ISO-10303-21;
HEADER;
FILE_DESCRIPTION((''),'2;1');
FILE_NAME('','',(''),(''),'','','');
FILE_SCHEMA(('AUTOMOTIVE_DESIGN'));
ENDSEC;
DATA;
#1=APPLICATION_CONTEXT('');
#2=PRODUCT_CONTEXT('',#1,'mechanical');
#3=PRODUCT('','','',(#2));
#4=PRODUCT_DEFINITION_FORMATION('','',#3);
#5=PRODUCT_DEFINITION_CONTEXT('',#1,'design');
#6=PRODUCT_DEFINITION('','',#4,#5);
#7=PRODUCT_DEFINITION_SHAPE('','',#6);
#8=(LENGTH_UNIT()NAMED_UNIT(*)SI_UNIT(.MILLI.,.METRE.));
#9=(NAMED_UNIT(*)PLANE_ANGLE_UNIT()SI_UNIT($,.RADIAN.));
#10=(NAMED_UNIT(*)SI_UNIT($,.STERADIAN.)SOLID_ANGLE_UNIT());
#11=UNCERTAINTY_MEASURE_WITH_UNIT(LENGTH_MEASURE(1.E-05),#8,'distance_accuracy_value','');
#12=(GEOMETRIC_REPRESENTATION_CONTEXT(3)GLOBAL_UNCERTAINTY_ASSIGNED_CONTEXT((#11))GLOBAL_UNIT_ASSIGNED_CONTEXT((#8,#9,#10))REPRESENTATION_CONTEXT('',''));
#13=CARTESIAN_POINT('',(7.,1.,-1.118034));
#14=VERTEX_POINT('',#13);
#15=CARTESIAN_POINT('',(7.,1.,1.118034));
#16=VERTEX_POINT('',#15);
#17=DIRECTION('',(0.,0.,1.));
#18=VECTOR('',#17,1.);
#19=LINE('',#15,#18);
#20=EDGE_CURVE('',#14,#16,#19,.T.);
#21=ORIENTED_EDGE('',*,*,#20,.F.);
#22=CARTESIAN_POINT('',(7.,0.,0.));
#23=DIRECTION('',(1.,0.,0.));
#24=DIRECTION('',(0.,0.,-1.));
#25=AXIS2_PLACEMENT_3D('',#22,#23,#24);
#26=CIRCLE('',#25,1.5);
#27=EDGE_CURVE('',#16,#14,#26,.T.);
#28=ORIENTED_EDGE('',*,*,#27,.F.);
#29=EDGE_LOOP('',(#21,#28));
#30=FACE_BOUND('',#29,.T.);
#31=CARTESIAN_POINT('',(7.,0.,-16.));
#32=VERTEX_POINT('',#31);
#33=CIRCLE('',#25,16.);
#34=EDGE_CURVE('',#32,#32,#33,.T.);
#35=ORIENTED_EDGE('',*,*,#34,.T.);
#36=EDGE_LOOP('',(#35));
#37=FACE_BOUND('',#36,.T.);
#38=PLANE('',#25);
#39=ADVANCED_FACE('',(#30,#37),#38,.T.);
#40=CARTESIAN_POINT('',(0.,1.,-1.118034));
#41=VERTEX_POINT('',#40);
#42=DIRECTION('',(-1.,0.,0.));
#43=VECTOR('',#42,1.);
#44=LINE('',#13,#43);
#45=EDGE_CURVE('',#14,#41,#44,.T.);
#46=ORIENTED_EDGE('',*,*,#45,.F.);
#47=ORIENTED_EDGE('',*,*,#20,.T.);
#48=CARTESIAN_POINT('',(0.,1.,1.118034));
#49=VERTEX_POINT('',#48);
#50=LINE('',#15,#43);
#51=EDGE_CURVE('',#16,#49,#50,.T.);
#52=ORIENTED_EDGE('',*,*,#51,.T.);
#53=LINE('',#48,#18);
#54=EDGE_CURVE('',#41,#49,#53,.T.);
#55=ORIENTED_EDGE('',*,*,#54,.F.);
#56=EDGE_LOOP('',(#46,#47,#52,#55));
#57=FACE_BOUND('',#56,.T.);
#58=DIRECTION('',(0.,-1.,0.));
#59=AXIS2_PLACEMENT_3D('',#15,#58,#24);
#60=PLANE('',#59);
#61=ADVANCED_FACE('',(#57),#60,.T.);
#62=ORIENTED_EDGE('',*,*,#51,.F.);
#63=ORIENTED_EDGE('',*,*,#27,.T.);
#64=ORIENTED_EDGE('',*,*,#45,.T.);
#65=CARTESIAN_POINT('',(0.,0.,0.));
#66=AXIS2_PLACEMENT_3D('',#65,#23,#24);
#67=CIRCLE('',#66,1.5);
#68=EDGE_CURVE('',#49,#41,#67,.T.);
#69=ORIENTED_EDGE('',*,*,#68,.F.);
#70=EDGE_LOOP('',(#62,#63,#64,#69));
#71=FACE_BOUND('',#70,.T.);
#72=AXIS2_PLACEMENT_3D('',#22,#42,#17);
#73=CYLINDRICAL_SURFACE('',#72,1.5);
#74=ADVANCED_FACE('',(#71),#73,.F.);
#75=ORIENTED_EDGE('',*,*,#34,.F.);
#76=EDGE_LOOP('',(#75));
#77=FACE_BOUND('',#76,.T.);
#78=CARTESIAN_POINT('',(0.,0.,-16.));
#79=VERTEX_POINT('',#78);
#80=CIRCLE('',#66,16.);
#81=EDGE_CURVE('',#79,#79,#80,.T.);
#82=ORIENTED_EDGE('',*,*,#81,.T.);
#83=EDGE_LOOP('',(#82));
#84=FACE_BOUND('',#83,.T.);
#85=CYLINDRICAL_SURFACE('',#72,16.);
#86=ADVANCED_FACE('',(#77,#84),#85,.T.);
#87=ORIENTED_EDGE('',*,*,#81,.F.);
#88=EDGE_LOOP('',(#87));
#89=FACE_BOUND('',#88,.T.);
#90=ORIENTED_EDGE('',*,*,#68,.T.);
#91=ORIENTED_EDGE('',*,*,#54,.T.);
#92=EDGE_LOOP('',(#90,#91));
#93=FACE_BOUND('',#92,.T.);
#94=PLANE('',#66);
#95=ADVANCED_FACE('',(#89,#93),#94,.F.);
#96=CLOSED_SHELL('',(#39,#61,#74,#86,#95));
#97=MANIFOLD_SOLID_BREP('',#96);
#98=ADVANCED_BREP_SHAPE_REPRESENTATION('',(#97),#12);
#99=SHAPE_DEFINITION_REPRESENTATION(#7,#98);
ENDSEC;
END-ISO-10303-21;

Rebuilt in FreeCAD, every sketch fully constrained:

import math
import FreeCAD as App
import Part
import Sketcher

V = App.Vector

doc = App.newDocument("Part")
params = doc.addObject("Spreadsheet::Sheet", "Params")
for row, (alias, value) in enumerate([
    ("sketch1_diameter", "32 mm"),
    ("sketch1_radius", "1.5 mm"),
    ("pad1_length", "7 mm"),
], start=1):
    params.set(f"A{row}", alias)
    params.set(f"B{row}", "=" + value)
    params.setAlias(f"B{row}", alias)

body = doc.addObject("PartDesign::Body", "Body")

sketch1 = body.newObject("Sketcher::SketchObject", "Sketch")
sketch1.AttachmentSupport = (doc.getObject("YZ_Plane"), [""])
sketch1.MapMode = "FlatFace"
sketch1.addGeometry(Part.Circle(V(0, 0, 0), V(0, 0, 1), 16), False)
sketch1.addGeometry(Part.ArcOfCircle(Part.Circle(V(0, 0, 0), V(0, 0, 1), 1.5), math.radians(48), math.radians(312)), False)
sketch1.addGeometry(Part.LineSegment(V(1, 1.1, 0), V(1, -1.1, 0)), False)
sketch1.addConstraint(Sketcher.Constraint("Coincident", 1, 1, 2, 1))
sketch1.addConstraint(Sketcher.Constraint("Coincident", 2, 2, 1, 2))
sketch1.addConstraint(Sketcher.Constraint("Vertical", 2))
sketch1.addConstraint(Sketcher.Constraint("Coincident", 0, 3, -1, 1))
sketch1.addConstraint(Sketcher.Constraint("Coincident", 1, 3, -1, 1))
sketch1.addConstraint(Sketcher.Constraint("Diameter", 0, 32.0))
sketch1.addConstraint(Sketcher.Constraint("Radius", 1, 1.5))
sketch1.addConstraint(Sketcher.Constraint("DistanceX", -1, 1, 1, 1, 1.0))
sketch1.setExpression("Constraints[5]", "Params.sketch1_diameter")
sketch1.setExpression("Constraints[6]", "Params.sketch1_radius")
pad1 = body.newObject("PartDesign::Pad", "Pad")
pad1.Profile = sketch1
pad1.setExpression("Length", "Params.pad1_length")

doc.recompute()
